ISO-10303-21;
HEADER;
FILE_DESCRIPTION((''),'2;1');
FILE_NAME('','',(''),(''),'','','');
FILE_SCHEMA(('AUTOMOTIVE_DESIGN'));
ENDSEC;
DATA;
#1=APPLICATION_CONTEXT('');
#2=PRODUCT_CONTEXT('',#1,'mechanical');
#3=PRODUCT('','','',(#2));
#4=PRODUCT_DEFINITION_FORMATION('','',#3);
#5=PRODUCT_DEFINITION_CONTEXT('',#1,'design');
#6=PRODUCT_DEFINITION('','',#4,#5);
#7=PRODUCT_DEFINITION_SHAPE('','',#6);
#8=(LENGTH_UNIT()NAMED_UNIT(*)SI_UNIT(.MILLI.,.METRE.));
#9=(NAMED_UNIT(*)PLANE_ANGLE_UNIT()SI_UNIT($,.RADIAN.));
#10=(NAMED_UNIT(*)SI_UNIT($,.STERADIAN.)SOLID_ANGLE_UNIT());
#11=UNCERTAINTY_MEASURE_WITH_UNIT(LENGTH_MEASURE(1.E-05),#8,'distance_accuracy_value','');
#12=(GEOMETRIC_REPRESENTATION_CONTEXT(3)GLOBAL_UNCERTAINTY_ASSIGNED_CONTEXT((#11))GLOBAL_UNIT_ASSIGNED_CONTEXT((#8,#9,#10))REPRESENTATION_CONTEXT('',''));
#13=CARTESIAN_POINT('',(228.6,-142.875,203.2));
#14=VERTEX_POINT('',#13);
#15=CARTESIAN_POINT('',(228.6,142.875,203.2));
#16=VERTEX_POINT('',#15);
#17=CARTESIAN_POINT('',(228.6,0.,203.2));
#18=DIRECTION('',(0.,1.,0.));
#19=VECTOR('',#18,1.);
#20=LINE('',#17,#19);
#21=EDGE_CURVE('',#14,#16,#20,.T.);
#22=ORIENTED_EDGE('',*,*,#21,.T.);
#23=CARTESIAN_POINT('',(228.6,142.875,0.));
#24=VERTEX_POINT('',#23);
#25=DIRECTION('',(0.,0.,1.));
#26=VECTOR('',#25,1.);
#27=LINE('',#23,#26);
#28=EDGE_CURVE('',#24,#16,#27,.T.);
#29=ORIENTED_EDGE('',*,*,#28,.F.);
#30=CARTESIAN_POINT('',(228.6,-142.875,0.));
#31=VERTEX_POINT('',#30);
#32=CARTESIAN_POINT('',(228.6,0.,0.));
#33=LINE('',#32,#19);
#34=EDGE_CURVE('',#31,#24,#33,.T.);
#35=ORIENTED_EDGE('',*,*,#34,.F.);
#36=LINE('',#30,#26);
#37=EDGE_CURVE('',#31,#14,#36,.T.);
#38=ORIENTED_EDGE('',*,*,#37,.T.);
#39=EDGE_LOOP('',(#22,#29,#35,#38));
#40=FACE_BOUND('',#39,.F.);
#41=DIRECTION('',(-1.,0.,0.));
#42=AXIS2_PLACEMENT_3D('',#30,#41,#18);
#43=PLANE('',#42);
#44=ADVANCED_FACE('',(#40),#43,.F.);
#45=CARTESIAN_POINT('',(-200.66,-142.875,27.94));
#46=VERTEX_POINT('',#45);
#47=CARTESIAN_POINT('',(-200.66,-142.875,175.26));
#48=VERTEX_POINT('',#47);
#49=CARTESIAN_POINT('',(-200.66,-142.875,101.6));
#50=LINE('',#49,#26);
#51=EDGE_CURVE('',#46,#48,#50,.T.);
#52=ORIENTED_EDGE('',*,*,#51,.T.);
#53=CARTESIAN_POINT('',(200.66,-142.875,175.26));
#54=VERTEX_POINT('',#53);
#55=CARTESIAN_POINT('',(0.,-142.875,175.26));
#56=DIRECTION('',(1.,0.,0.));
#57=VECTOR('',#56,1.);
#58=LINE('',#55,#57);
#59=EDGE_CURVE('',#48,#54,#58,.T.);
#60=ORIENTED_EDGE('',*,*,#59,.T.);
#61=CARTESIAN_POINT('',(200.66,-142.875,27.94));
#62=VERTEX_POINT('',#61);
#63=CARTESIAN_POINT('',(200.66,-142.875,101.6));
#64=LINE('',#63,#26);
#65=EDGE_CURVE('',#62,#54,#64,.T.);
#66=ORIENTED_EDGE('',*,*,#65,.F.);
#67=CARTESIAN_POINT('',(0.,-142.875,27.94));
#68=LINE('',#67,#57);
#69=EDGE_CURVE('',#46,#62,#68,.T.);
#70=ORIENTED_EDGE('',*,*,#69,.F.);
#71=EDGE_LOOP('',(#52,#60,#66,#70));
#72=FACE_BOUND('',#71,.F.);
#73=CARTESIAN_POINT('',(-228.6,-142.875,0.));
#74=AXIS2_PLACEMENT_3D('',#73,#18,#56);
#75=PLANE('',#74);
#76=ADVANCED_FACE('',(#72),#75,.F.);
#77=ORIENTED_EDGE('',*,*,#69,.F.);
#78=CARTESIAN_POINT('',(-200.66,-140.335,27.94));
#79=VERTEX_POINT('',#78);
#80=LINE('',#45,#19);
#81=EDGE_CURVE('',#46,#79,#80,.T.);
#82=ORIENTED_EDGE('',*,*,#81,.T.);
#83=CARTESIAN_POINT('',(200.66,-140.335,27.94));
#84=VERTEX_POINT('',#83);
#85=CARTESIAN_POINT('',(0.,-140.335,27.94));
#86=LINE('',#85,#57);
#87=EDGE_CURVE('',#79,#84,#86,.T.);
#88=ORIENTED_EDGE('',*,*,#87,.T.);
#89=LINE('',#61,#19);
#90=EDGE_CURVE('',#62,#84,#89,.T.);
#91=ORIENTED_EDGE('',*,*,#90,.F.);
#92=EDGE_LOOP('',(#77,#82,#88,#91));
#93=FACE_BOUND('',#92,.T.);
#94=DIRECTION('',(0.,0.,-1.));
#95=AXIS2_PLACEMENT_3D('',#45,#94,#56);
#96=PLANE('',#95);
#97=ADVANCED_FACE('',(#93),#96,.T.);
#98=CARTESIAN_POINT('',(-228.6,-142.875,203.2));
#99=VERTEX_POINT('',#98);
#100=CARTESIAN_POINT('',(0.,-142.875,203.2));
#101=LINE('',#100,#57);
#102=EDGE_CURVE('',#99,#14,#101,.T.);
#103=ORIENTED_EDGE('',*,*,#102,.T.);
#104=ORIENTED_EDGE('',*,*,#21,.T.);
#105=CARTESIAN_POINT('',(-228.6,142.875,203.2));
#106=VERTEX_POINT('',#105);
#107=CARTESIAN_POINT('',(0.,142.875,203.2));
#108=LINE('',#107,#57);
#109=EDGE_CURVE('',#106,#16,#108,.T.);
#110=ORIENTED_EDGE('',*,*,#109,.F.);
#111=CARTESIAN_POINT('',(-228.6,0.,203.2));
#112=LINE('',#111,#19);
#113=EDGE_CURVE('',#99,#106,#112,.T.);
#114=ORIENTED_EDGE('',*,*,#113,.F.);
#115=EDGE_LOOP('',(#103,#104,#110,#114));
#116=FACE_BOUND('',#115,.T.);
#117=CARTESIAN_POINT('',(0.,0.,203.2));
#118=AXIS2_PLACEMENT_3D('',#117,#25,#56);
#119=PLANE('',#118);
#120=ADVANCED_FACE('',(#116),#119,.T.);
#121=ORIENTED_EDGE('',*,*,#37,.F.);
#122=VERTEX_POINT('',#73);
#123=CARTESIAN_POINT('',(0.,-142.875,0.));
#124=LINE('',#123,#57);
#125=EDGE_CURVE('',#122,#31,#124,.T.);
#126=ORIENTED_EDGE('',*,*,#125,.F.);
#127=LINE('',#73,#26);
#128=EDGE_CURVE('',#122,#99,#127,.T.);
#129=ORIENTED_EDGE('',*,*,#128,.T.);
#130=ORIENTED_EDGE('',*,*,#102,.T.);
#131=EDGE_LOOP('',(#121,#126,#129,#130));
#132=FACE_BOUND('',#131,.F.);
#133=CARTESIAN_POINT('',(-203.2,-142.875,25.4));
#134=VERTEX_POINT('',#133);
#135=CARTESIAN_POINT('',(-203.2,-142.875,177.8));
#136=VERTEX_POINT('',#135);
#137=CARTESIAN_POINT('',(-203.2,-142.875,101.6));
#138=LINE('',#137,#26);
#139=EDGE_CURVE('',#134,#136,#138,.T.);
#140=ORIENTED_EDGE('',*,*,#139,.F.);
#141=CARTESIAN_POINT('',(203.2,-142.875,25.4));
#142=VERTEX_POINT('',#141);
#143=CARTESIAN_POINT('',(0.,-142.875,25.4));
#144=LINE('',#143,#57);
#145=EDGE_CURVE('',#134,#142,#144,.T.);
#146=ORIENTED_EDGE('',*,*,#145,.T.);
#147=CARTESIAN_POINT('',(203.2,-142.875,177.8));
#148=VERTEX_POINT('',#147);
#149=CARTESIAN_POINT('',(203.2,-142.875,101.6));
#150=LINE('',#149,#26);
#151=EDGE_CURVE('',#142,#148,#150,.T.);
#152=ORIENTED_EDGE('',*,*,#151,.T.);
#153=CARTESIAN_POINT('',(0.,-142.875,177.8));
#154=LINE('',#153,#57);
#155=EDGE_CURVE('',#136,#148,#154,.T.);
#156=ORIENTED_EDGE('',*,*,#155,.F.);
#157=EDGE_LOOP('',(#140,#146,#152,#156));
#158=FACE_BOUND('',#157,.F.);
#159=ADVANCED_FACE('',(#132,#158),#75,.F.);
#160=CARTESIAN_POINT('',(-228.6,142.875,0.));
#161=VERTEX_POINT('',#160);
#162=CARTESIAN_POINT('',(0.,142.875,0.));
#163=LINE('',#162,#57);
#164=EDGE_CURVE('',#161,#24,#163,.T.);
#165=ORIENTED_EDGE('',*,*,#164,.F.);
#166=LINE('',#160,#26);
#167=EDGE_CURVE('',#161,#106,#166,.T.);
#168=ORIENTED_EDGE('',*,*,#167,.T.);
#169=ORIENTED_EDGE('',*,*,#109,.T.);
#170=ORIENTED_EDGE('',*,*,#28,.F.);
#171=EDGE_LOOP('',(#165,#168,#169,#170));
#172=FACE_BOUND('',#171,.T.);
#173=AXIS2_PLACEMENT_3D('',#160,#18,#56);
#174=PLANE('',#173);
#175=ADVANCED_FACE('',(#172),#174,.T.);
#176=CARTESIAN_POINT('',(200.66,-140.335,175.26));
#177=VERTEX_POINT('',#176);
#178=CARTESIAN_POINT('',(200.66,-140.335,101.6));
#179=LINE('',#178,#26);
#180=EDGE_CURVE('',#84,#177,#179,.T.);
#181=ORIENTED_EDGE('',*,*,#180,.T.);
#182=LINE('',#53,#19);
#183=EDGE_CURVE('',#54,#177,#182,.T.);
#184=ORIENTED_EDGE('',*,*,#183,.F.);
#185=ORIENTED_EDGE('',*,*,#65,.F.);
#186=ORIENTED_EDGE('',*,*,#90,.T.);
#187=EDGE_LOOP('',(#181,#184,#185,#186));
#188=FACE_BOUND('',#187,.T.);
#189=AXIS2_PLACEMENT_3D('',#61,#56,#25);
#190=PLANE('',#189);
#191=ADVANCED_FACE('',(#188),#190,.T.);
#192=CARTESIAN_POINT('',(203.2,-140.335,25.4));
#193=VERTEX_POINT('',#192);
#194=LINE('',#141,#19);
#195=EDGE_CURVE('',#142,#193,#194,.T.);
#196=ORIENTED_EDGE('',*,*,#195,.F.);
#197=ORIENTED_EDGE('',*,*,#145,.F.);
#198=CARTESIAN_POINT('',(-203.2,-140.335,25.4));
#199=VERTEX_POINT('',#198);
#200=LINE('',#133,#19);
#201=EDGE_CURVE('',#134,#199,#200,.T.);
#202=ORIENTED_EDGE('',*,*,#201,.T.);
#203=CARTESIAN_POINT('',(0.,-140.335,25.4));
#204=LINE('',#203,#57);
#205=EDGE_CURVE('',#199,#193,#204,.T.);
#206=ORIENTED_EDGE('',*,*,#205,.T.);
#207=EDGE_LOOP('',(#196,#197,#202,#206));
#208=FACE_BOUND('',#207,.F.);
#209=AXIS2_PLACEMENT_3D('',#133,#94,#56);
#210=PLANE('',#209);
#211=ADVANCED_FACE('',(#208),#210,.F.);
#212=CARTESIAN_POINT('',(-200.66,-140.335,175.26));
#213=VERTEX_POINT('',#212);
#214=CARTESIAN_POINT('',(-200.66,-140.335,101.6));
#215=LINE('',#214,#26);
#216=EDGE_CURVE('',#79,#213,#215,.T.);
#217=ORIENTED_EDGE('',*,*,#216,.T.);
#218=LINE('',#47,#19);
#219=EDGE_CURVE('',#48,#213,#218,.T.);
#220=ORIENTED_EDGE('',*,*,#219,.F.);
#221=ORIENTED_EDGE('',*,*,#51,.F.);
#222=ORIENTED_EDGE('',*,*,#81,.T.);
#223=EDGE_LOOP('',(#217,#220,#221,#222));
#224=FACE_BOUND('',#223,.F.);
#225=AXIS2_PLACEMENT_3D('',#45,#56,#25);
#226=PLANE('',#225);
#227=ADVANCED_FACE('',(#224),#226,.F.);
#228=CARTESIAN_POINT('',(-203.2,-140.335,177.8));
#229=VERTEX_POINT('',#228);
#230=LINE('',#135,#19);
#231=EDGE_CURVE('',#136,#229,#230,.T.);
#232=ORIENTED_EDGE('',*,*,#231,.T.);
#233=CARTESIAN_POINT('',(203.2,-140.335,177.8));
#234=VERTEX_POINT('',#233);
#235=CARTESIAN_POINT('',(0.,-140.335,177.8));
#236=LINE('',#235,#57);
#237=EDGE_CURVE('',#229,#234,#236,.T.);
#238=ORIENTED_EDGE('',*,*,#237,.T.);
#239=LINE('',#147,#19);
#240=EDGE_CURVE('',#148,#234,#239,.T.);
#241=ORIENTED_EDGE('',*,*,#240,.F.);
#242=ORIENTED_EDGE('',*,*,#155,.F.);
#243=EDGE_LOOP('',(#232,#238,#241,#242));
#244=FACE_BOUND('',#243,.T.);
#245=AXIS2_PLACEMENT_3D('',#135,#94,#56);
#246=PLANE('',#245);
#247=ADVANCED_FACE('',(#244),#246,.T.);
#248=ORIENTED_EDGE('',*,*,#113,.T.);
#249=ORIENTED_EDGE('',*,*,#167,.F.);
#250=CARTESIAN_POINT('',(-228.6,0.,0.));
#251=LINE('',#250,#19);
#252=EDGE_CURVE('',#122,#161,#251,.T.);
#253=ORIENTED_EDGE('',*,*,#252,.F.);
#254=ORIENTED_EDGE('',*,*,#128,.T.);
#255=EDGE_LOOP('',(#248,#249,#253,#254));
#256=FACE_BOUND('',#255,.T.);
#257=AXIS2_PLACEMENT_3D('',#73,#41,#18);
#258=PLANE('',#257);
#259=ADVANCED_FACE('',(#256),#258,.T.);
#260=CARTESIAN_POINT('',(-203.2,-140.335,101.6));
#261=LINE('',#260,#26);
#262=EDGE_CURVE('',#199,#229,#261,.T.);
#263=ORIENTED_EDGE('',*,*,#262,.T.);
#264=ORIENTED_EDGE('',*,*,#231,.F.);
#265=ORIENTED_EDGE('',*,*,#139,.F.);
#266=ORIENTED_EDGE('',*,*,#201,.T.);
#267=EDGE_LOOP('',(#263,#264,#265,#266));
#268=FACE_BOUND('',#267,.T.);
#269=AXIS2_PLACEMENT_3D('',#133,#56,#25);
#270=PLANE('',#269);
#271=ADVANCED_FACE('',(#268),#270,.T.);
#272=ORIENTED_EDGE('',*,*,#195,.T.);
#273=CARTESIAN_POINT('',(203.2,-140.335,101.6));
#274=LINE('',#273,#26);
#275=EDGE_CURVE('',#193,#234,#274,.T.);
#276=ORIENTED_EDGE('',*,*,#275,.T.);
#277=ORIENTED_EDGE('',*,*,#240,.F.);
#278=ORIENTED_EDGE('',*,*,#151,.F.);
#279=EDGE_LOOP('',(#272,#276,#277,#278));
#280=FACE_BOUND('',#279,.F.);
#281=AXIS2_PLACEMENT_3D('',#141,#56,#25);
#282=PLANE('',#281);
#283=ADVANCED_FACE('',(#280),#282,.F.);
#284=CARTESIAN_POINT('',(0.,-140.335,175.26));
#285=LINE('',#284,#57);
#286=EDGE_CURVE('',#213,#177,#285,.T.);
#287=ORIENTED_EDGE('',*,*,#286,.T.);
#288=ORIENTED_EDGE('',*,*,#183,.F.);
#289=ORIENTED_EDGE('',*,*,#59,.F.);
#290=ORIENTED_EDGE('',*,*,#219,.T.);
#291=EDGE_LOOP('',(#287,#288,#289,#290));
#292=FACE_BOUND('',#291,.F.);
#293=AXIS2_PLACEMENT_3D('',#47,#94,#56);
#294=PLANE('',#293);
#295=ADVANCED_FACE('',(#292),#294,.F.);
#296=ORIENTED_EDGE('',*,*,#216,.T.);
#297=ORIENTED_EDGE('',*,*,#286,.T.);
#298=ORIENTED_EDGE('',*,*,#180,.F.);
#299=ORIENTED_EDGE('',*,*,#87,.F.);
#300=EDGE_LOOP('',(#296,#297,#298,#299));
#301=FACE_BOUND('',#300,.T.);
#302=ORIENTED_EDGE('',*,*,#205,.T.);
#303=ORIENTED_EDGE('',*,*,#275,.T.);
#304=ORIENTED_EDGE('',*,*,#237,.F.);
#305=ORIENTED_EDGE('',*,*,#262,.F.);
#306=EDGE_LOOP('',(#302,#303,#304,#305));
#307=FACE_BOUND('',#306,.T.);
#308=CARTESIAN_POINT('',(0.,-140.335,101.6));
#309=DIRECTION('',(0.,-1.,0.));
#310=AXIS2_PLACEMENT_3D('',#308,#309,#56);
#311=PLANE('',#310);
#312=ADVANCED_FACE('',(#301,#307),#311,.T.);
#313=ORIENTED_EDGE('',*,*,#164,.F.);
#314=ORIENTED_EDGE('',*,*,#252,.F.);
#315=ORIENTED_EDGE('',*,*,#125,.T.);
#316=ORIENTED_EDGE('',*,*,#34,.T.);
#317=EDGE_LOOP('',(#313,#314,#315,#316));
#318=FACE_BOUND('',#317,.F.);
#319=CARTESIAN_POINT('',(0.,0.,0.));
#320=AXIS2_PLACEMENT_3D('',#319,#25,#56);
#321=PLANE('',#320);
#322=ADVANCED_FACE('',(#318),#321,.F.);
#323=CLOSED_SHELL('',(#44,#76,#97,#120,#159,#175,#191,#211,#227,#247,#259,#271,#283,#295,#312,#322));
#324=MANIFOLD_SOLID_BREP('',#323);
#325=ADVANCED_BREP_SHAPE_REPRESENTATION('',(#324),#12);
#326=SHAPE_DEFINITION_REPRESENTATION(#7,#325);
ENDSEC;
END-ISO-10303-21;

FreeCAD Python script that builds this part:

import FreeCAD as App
import Part
import Sketcher
Q = App.Units.Quantity


def add_polygon(sketch, points):
    """Adds a closed chain of lines whose ends are joined by coincident constraints."""
    first, n = sketch.GeometryCount, len(points)
    for a, b in zip(points, points[1:] + points[:1]):
        sketch.addGeometry(Part.LineSegment(App.Vector(*a, 0), App.Vector(*b, 0)), False)
    for i in range(n):
        sketch.addConstraint(Sketcher.Constraint("Coincident", first + i, 2, first + (i + 1) % n, 1))

doc = App.newDocument("Part")
params = doc.addObject("Spreadsheet::Sheet", "Params")
for row, (alias, value) in enumerate([
    ("sketch1_width", "18 in"),
    ("sketch1_height", "11.25 in"),
    ("pad1_length", "8 in"),
    ("sketch2_width", "16 in"),
    ("sketch2_height", "6 in"),
    ("sketch2_width2", "15.8 in"),
    ("sketch2_height2", "5.8 in"),
    ("pocket1_length", "0.1 in"),
], start=1):
    params.set(f"A{row}", alias)
    params.set(f"B{row}", "=" + value)
    params.setAlias(f"B{row}", alias)

body = doc.addObject("PartDesign::Body", "Body")

# Sketch on XY plane
sketch1 = doc.addObject("Sketcher::SketchObject", "Sketch")
body.addObject(sketch1)
sketch1.AttachmentSupport = (doc.XY_Plane, [""])
sketch1.MapMode = "FlatFace"
add_polygon(sketch1, [(-228.6, 142.875), (-228.6, -142.875), (228.6, -142.875), (228.6, 142.875)])  # lines 0-3
sketch1.addConstraint([
    Sketcher.Constraint("Vertical", 0),
    Sketcher.Constraint("Horizontal", 1),
    Sketcher.Constraint("Vertical", 2),
    Sketcher.Constraint("Horizontal", 3),
    Sketcher.Constraint("Symmetric", 0, 2, 2, 2, -1, 1),
    Sketcher.Constraint("DistanceX", 1, 1, 1, 2, Q("18 in")),
    Sketcher.Constraint("DistanceY", 0, 2, 0, 1, Q("11.25 in")),
])
sketch1.setExpression("Constraints[9]", "Params.sketch1_width")
sketch1.setExpression("Constraints[10]", "Params.sketch1_height")
pad1 = doc.addObject("PartDesign::Pad", "Pad")
body.addObject(pad1)
pad1.Profile = sketch1
pad1.setExpression("Length", "Params.pad1_length")

# Sketch on XZ plane
sketch2 = doc.addObject("Sketcher::SketchObject", "Sketch001")
body.addObject(sketch2)
sketch2.AttachmentSupport = (doc.XZ_Plane, [""])
sketch2.MapMode = "FlatFace"
sketch2.AttachmentOffset = App.Placement(App.Vector(0, 0, 5.625 * 25.4), App.Rotation())
add_polygon(sketch2, [(-203.2, 177.8), (-203.2, 25.4), (203.2, 25.4), (203.2, 177.8)])  # lines 0-3
add_polygon(sketch2, [(200.66, 27.94), (-200.66, 27.94), (-200.66, 175.26), (200.66, 175.26)])  # lines 4-7
sketch2.addConstraint([
    Sketcher.Constraint("Vertical", 0),
    Sketcher.Constraint("Horizontal", 1),
    Sketcher.Constraint("Vertical", 2),
    Sketcher.Constraint("Horizontal", 3),
    Sketcher.Constraint("Horizontal", 4),
    Sketcher.Constraint("Vertical", 5),
    Sketcher.Constraint("Horizontal", 6),
    Sketcher.Constraint("Vertical", 7),
    Sketcher.Constraint("DistanceX", 1, 1, 1, 2, Q("16 in")),
    Sketcher.Constraint("DistanceY", 0, 2, 0, 1, Q("6 in")),
    Sketcher.Constraint("DistanceX", 4, 2, 4, 1, Q("15.8 in")),
    Sketcher.Constraint("DistanceY", 5, 1, 5, 2, Q("5.8 in")),
    Sketcher.Constraint("DistanceX", 0, 2, -1, 1, Q("8 in")),
    Sketcher.Constraint("DistanceY", -1, 1, 0, 2, Q("1 in")),
    Sketcher.Constraint("DistanceX", 4, 2, -1, 1, Q("7.9 in")),
    Sketcher.Constraint("DistanceY", -1, 1, 4, 2, Q("1.1 in")),
])
sketch2.setExpression("Constraints[16]", "Params.sketch2_width")
sketch2.setExpression("Constraints[17]", "Params.sketch2_height")
sketch2.setExpression("Constraints[18]", "Params.sketch2_width2")
sketch2.setExpression("Constraints[19]", "Params.sketch2_height2")
pocket1 = doc.addObject("PartDesign::Pocket", "Pocket")
body.addObject(pocket1)
pocket1.Profile = sketch2
pocket1.setExpression("Length", "Params.pocket1_length")

doc.recompute()
